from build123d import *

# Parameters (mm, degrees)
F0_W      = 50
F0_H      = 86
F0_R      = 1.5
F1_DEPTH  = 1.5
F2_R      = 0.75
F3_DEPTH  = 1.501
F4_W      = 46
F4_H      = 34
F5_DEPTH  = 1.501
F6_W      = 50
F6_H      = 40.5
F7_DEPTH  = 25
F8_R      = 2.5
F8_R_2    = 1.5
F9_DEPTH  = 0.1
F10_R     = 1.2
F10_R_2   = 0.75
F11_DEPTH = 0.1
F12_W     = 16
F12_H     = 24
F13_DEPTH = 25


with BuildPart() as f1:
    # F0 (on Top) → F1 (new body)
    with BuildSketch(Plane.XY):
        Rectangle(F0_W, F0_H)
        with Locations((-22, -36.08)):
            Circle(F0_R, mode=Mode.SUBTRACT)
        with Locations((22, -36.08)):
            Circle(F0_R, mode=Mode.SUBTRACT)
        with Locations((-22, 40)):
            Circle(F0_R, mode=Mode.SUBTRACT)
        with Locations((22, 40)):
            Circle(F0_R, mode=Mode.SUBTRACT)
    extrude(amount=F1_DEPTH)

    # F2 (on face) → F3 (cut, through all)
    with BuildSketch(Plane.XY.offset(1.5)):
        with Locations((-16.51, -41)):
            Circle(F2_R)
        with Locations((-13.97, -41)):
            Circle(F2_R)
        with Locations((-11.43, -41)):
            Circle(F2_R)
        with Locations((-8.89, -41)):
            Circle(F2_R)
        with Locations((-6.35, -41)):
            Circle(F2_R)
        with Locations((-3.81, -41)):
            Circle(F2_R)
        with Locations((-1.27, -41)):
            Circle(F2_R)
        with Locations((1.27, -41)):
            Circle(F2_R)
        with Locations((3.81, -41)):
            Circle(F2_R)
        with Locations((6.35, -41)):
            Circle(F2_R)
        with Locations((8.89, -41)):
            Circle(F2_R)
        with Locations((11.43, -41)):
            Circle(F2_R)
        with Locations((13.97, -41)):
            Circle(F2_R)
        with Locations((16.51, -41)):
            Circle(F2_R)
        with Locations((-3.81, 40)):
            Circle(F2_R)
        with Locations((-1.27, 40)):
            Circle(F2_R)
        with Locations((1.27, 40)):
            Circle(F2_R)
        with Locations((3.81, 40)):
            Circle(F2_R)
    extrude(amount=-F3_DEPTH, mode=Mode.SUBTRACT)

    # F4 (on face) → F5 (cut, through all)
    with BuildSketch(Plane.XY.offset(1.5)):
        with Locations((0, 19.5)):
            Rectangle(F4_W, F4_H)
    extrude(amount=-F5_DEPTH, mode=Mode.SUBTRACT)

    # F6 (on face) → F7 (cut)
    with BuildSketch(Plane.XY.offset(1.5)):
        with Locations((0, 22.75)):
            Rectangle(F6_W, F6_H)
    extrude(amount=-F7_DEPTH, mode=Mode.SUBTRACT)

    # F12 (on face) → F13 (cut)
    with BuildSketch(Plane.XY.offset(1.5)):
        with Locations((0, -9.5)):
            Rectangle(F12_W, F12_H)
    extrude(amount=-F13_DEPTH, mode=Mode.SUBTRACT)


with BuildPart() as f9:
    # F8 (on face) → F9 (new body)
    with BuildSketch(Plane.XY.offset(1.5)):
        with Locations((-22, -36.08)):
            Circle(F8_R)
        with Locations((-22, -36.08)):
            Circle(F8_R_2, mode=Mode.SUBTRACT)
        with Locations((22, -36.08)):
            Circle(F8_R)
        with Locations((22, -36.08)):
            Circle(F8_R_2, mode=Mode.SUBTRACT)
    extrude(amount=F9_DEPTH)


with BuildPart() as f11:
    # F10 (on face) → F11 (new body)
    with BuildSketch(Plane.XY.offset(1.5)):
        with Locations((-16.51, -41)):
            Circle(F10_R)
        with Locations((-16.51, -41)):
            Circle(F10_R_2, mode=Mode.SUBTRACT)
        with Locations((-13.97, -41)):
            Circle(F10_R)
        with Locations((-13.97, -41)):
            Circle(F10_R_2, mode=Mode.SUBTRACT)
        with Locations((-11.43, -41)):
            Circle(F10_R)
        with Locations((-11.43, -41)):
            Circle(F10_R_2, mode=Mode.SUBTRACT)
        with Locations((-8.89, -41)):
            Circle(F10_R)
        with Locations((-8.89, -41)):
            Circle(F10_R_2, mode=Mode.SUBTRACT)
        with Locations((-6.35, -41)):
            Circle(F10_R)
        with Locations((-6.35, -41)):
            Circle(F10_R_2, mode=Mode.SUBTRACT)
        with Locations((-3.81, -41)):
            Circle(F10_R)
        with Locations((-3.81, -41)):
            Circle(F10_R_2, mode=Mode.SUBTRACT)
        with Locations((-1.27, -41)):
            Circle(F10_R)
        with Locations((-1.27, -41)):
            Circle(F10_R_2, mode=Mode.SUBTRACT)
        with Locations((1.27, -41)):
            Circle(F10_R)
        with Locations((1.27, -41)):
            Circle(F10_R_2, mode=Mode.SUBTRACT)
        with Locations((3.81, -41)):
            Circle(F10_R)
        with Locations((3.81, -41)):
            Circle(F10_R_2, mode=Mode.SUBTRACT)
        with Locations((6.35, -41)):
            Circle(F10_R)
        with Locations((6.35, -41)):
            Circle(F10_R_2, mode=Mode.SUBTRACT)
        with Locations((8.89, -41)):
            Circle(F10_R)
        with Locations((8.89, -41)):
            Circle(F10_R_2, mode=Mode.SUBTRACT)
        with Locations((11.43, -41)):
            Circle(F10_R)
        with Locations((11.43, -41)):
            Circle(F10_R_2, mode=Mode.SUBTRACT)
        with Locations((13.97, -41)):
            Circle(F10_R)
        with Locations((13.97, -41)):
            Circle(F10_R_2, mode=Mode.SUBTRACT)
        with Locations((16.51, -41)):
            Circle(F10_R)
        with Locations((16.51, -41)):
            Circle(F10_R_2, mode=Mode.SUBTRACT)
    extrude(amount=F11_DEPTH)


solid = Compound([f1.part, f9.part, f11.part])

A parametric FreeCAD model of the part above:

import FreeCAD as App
import Part
import Sketcher
Q = App.Units.Quantity


def add_polygon(sketch, points):
    """Adds a closed chain of lines whose ends are joined by coincident constraints."""
    first, n = sketch.GeometryCount, len(points)
    for a, b in zip(points, points[1:] + points[:1]):
        sketch.addGeometry(Part.LineSegment(App.Vector(*a, 0), App.Vector(*b, 0)), False)
    for i in range(n):
        sketch.addConstraint(Sketcher.Constraint("Coincident", first + i, 2, first + (i + 1) % n, 1))

doc = App.newDocument("Part")
params = doc.addObject("Spreadsheet::Sheet", "Params")
for row, (alias, value) in enumerate([
    ("sketch1_diameter", "3 mm"),
    ("sketch1_width", "50 mm"),
    ("sketch1_height", "86 mm"),
    ("pad1_length", "1.5 mm"),
    ("sketch2_diameter", "1.5 mm"),
    ("sketch3_width", "46 mm"),
    ("sketch3_height", "34 mm"),
    ("sketch4_width", "50 mm"),
    ("sketch4_height", "40.5 mm"),
    ("pocket3_length", "25 mm"),
    ("sketch5_width", "16 mm"),
    ("sketch5_height", "24 mm"),
    ("pocket4_length", "25 mm"),
    ("sketch6_diameter", "5 mm"),
    ("sketch6_diameter2", "3 mm"),
    ("pad2_length", "0.1 mm"),
    ("sketch7_diameter", "2.4 mm"),
    ("sketch7_diameter2", "1.5 mm"),
    ("pad3_length", "0.1 mm"),
], start=1):
    params.set(f"A{row}", alias)
    params.set(f"B{row}", "=" + value)
    params.setAlias(f"B{row}", alias)

body = doc.addObject("PartDesign::Body", "Body")

sketch1 = body.newObject("Sketcher::SketchObject", "Sketch")
sketch1.AttachmentSupport = (doc.getObject("XY_Plane"), [""])
sketch1.MapMode = "FlatFace"
add_polygon(sketch1, [(-25, 43), (-25, -43), (25, -43), (25, 43)])
sketch1.addGeometry(Part.Circle(App.Vector(-22, -36.08, 0), App.Vector(0, 0, 1), 1.5), False)
sketch1.addGeometry(Part.Circle(App.Vector(22, -36.08, 0), App.Vector(0, 0, 1), 1.5), False)
sketch1.addGeometry(Part.Circle(App.Vector(-22, 40, 0), App.Vector(0, 0, 1), 1.5), False)
sketch1.addGeometry(Part.Circle(App.Vector(22, 40, 0), App.Vector(0, 0, 1), 1.5), False)
sketch1.addConstraint([
    Sketcher.Constraint("Vertical", 0),
    Sketcher.Constraint("Horizontal", 1),
    Sketcher.Constraint("Vertical", 2),
    Sketcher.Constraint("Horizontal", 3),
    Sketcher.Constraint("Equal", 4, 5),
    Sketcher.Constraint("Equal", 5, 6),
    Sketcher.Constraint("Equal", 6, 7),
    Sketcher.Constraint("Symmetric", 0, 2, 2, 2, -1, 1),
    Sketcher.Constraint("Symmetric", 4, 3, 5, 3, -2),
    Sketcher.Constraint("Symmetric", 6, 3, 7, 3, -2),
    Sketcher.Constraint("Vertical", 4, 3, 6, 3),
    Sketcher.Constraint("Diameter", 4, Q("3 mm")),
    Sketcher.Constraint("DistanceX", 1, 1, 1, 2, Q("50 mm")),
    Sketcher.Constraint("DistanceY", 0, 2, 0, 1, Q("86 mm")),
    Sketcher.Constraint("DistanceX", 4, 3, -1, 1, Q("22 mm")),
    Sketcher.Constraint("DistanceY", -1, 1, 6, 3, Q("40 mm")),
    Sketcher.Constraint("DistanceY", 4, 3, -1, 1, Q("36.08 mm")),
])
sketch1.setExpression("Constraints[15]", "Params.sketch1_diameter")
sketch1.setExpression("Constraints[16]", "Params.sketch1_width")
sketch1.setExpression("Constraints[17]", "Params.sketch1_height")
pad1 = body.newObject("PartDesign::Pad", "Pad")
pad1.Profile = sketch1
pad1.setExpression("Length", "Params.pad1_length")

sketch2 = body.newObject("Sketcher::SketchObject", "Sketch001")
sketch2.AttachmentSupport = (doc.getObject("XY_Plane"), [""])
sketch2.MapMode = "FlatFace"
sketch2.AttachmentOffset = App.Placement(App.Vector(0, 0, 1.5), App.Rotation())
sketch2.addGeometry([
    Part.Circle(App.Vector(-16.51, -41, 0), App.Vector(0, 0, 1), 0.75),
    Part.Circle(App.Vector(-13.97, -41, 0), App.Vector(0, 0, 1), 0.75),
    Part.Circle(App.Vector(-11.43, -41, 0), App.Vector(0, 0, 1), 0.75),
    Part.Circle(App.Vector(-8.89, -41, 0), App.Vector(0, 0, 1), 0.75),
    Part.Circle(App.Vector(-6.35, -41, 0), App.Vector(0, 0, 1), 0.75),
    Part.Circle(App.Vector(-3.81, -41, 0), App.Vector(0, 0, 1), 0.75),
    Part.Circle(App.Vector(-1.27, -41, 0), App.Vector(0, 0, 1), 0.75),
    Part.Circle(App.Vector(1.27, -41, 0), App.Vector(0, 0, 1), 0.75),
    Part.Circle(App.Vector(3.81, -41, 0), App.Vector(0, 0, 1), 0.75),
    Part.Circle(App.Vector(6.35, -41, 0), App.Vector(0, 0, 1), 0.75),
    Part.Circle(App.Vector(8.89, -41, 0), App.Vector(0, 0, 1), 0.75),
    Part.Circle(App.Vector(11.43, -41, 0), App.Vector(0, 0, 1), 0.75),
    Part.Circle(App.Vector(13.97, -41, 0), App.Vector(0, 0, 1), 0.75),
    Part.Circle(App.Vector(16.51, -41, 0), App.Vector(0, 0, 1), 0.75),
    Part.Circle(App.Vector(-3.81, 40, 0), App.Vector(0, 0, 1), 0.75),
    Part.Circle(App.Vector(-1.27, 40, 0), App.Vector(0, 0, 1), 0.75),
    Part.Circle(App.Vector(1.27, 40, 0), App.Vector(0, 0, 1), 0.75),
    Part.Circle(App.Vector(3.81, 40, 0), App.Vector(0, 0, 1), 0.75),
], False)
sketch2.addConstraint([
    Sketcher.Constraint("Equal", 0, 1),
    Sketcher.Constraint("Equal", 1, 2),
    Sketcher.Constraint("Equal", 2, 3),
    Sketcher.Constraint("Equal", 3, 4),
    Sketcher.Constraint("Equal", 4, 5),
    Sketcher.Constraint("Equal", 5, 6),
    Sketcher.Constraint("Equal", 6, 7),
    Sketcher.Constraint("Equal", 7, 8),
    Sketcher.Constraint("Equal", 8, 9),
    Sketcher.Constraint("Equal", 9, 10),
    Sketcher.Constraint("Equal", 10, 11),
    Sketcher.Constraint("Equal", 11, 12),
    Sketcher.Constraint("Equal", 12, 13),
    Sketcher.Constraint("Equal", 13, 14),
    Sketcher.Constraint("Equal", 14, 15),
    Sketcher.Constraint("Equal", 15, 16),
    Sketcher.Constraint("Equal", 16, 17),
    Sketcher.Constraint("Symmetric", 6, 3, 7, 3, -2),
    Sketcher.Constraint("Symmetric", 5, 3, 8, 3, -2),
    Sketcher.Constraint("Symmetric", 4, 3, 9, 3, -2),
    Sketcher.Constraint("Symmetric", 3, 3, 10, 3, -2),
    Sketcher.Constraint("Symmetric", 2, 3, 11, 3, -2),
    Sketcher.Constraint("Symmetric", 1, 3, 12, 3, -2),
    Sketcher.Constraint("Symmetric", 0, 3, 13, 3, -2),
    Sketcher.Constraint("Symmetric", 15, 3, 16, 3, -2),
    Sketcher.Constraint("Symmetric", 14, 3, 17, 3, -2),
    Sketcher.Constraint("Horizontal", 0, 3, 1, 3),
    Sketcher.Constraint("Horizontal", 1, 3, 2, 3),
    Sketcher.Constraint("Horizontal", 2, 3, 3, 3),
    Sketcher.Constraint("Horizontal", 3, 3, 4, 3),
    Sketcher.Constraint("Horizontal", 4, 3, 5, 3),
    Sketcher.Constraint("Horizontal", 5, 3, 6, 3),
    Sketcher.Constraint("Horizontal", 14, 3, 15, 3),
    Sketcher.Constraint("Vertical", 5, 3, 14, 3),
    Sketcher.Constraint("Vertical", 6, 3, 15, 3),
    Sketcher.Constraint("Diameter", 0, Q("1.5 mm")),
    Sketcher.Constraint("DistanceY", 0, 3, -1, 1, Q("41 mm")),
    Sketcher.Constraint("DistanceY", -1, 1, 14, 3, Q("40 mm")),
    Sketcher.Constraint("DistanceX", 0, 3, 5, 3, Q("12.7 mm")),
    Sketcher.Constraint("DistanceX", 1, 3, 6, 3, Q("12.7 mm")),
    Sketcher.Constraint("DistanceX", 2, 3, 7, 3, Q("12.7 mm")),
    Sketcher.Constraint("DistanceX", 3, 3, 8, 3, Q("12.7 mm")),
    Sketcher.Constraint("DistanceX", 4, 3, 9, 3, Q("12.7 mm")),
    Sketcher.Constraint("DistanceX", 0, 3, -1, 1, Q("16.51 mm")),
    Sketcher.Constraint("DistanceX", 1, 3, -1, 1, Q("13.97 mm")),
])
sketch2.setExpression("Constraints[35]", "Params.sketch2_diameter")
pocket1 = body.newObject("PartDesign::Pocket", "Pocket")
pocket1.Profile = sketch2
pocket1.Type = "ThroughAll"

sketch3 = body.newObject("Sketcher::SketchObject", "Sketch002")
sketch3.AttachmentSupport = (doc.getObject("XY_Plane"), [""])
sketch3.MapMode = "FlatFace"
sketch3.AttachmentOffset = App.Placement(App.Vector(0, 0, 1.5), App.Rotation())
add_polygon(sketch3, [(-23, 36.5), (-23, 2.5), (23, 2.5), (23, 36.5)])
sketch3.addConstraint([
    Sketcher.Constraint("Vertical", 0),
    Sketcher.Constraint("Horizontal", 1),
    Sketcher.Constraint("Vertical", 2),
    Sketcher.Constraint("Horizontal", 3),
    Sketcher.Constraint("DistanceX", 1, 1, 1, 2, Q("46 mm")),
    Sketcher.Constraint("DistanceY", 0, 2, 0, 1, Q("34 mm")),
    Sketcher.Constraint("DistanceX", 0, 2, -1, 1, Q("23 mm")),
    Sketcher.Constraint("DistanceY", -1, 1, 0, 2, Q("2.5 mm")),
])
sketch3.setExpression("Constraints[8]", "Params.sketch3_width")
sketch3.setExpression("Constraints[9]", "Params.sketch3_height")
pocket2 = body.newObject("PartDesign::Pocket", "Pocket001")
pocket2.Profile = sketch3
pocket2.Type = "ThroughAll"

sketch4 = body.newObject("Sketcher::SketchObject", "Sketch003")
sketch4.AttachmentSupport = (doc.getObject("XY_Plane"), [""])
sketch4.MapMode = "FlatFace"
sketch4.AttachmentOffset = App.Placement(App.Vector(0, 0, 1.5), App.Rotation())
add_polygon(sketch4, [(-25, 43), (-25, 2.5), (25, 2.5), (25, 43)])
sketch4.addConstraint([
    Sketcher.Constraint("Vertical", 0),
    Sketcher.Constraint("Horizontal", 1),
    Sketcher.Constraint("Vertical", 2),
    Sketcher.Constraint("Horizontal", 3),
    Sketcher.Constraint("DistanceX", 1, 1, 1, 2, Q("50 mm")),
    Sketcher.Constraint("DistanceY", 0, 2, 0, 1, Q("40.5 mm")),
    Sketcher.Constraint("DistanceX", 0, 2, -1, 1, Q("25 mm")),
    Sketcher.Constraint("DistanceY", -1, 1, 2, 2, Q("43 mm")),
])
sketch4.setExpression("Constraints[8]", "Params.sketch4_width")
sketch4.setExpression("Constraints[9]", "Params.sketch4_height")
pocket3 = body.newObject("PartDesign::Pocket", "Pocket002")
pocket3.Profile = sketch4
pocket3.setExpression("Length", "Params.pocket3_length")

sketch5 = body.newObject("Sketcher::SketchObject", "Sketch004")
sketch5.AttachmentSupport = (doc.getObject("XY_Plane"), [""])
sketch5.MapMode = "FlatFace"
sketch5.AttachmentOffset = App.Placement(App.Vector(0, 0, 1.5), App.Rotation())
add_polygon(sketch5, [(-8, 2.5), (-8, -21.5), (8, -21.5), (8, 2.5)])
sketch5.addConstraint([
    Sketcher.Constraint("Vertical", 0),
    Sketcher.Constraint("Horizontal", 1),
    Sketcher.Constraint("Vertical", 2),
    Sketcher.Constraint("Horizontal", 3),
    Sketcher.Constraint("DistanceX", 1, 1, 1, 2, Q("16 mm")),
    Sketcher.Constraint("DistanceY", 0, 2, 0, 1, Q("24 mm")),
    Sketcher.Constraint("DistanceX", 0, 2, -1, 1, Q("8 mm")),
    Sketcher.Constraint("DistanceY", 0, 2, -1, 1, Q("21.5 mm")),
])
sketch5.setExpression("Constraints[8]", "Params.sketch5_width")
sketch5.setExpression("Constraints[9]", "Params.sketch5_height")
pocket4 = body.newObject("PartDesign::Pocket", "Pocket003")
pocket4.Profile = sketch5
pocket4.setExpression("Length", "Params.pocket4_length")
body2 = doc.addObject("PartDesign::Body", "Body001")
body2.AllowCompound = True

sketch6 = body2.newObject("Sketcher::SketchObject", "Sketch005")
sketch6.AttachmentSupport = (doc.getObject("XY_Plane001"), [""])
sketch6.MapMode = "FlatFace"
sketch6.AttachmentOffset = App.Placement(App.Vector(0, 0, 1.5), App.Rotation())
sketch6.addGeometry([
    Part.Circle(App.Vector(-22, -36.08, 0), App.Vector(0, 0, 1), 2.5),
    Part.Circle(App.Vector(-22, -36.08, 0), App.Vector(0, 0, 1), 1.5),
    Part.Circle(App.Vector(22, -36.08, 0), App.Vector(0, 0, 1), 2.5),
    Part.Circle(App.Vector(22, -36.08, 0), App.Vector(0, 0, 1), 1.5),
], False)
sketch6.addConstraint([
    Sketcher.Constraint("Coincident", 1, 3, 0, 3),
    Sketcher.Constraint("Coincident", 3, 3, 2, 3),
    Sketcher.Constraint("Equal", 0, 2),
    Sketcher.Constraint("Equal", 1, 3),
    Sketcher.Constraint("Symmetric", 0, 3, 2, 3, -2),
    Sketcher.Constraint("Diameter", 0, Q("5 mm")),
    Sketcher.Constraint("Diameter", 1, Q("3 mm")),
    Sketcher.Constraint("DistanceX", 0, 3, -1, 1, Q("22 mm")),
    Sketcher.Constraint("DistanceY", 0, 3, -1, 1, Q("36.08 mm")),
])
sketch6.setExpression("Constraints[5]", "Params.sketch6_diameter")
sketch6.setExpression("Constraints[6]", "Params.sketch6_diameter2")
pad2 = body2.newObject("PartDesign::Pad", "Pad001")
pad2.Profile = sketch6
pad2.setExpression("Length", "Params.pad2_length")
body3 = doc.addObject("PartDesign::Body", "Body002")
body3.AllowCompound = True

sketch7 = body3.newObject("Sketcher::SketchObject", "Sketch006")
sketch7.AttachmentSupport = (doc.getObject("XY_Plane002"), [""])
sketch7.MapMode = "FlatFace"
sketch7.AttachmentOffset = App.Placement(App.Vector(0, 0, 1.5), App.Rotation())
sketch7.addGeometry([
    Part.Circle(App.Vector(-16.51, -41, 0), App.Vector(0, 0, 1), 1.2),
    Part.Circle(App.Vector(-16.51, -41, 0), App.Vector(0, 0, 1), 0.75),
    Part.Circle(App.Vector(-13.97, -41, 0), App.Vector(0, 0, 1), 1.2),
    Part.Circle(App.Vector(-13.97, -41, 0), App.Vector(0, 0, 1), 0.75),
    Part.Circle(App.Vector(-11.43, -41, 0), App.Vector(0, 0, 1), 1.2),
    Part.Circle(App.Vector(-11.43, -41, 0), App.Vector(0, 0, 1), 0.75),
    Part.Circle(App.Vector(-8.89, -41, 0), App.Vector(0, 0, 1), 1.2),
    Part.Circle(App.Vector(-8.89, -41, 0), App.Vector(0, 0, 1), 0.75),
    Part.Circle(App.Vector(-6.35, -41, 0), App.Vector(0, 0, 1), 1.2),
    Part.Circle(App.Vector(-6.35, -41, 0), App.Vector(0, 0, 1), 0.75),
    Part.Circle(App.Vector(-3.81, -41, 0), App.Vector(0, 0, 1), 1.2),
    Part.Circle(App.Vector(-3.81, -41, 0), App.Vector(0, 0, 1), 0.75),
    Part.Circle(App.Vector(-1.27, -41, 0), App.Vector(0, 0, 1), 1.2),
    Part.Circle(App.Vector(-1.27, -41, 0), App.Vector(0, 0, 1), 0.75),
    Part.Circle(App.Vector(1.27, -41, 0), App.Vector(0, 0, 1), 1.2),
    Part.Circle(App.Vector(1.27, -41, 0), App.Vector(0, 0, 1), 0.75),
    Part.Circle(App.Vector(3.81, -41, 0), App.Vector(0, 0, 1), 1.2),
    Part.Circle(App.Vector(3.81, -41, 0), App.Vector(0, 0, 1), 0.75),
    Part.Circle(App.Vector(6.35, -41, 0), App.Vector(0, 0, 1), 1.2),
    Part.Circle(App.Vector(6.35, -41, 0), App.Vector(0, 0, 1), 0.75),
    Part.Circle(App.Vector(8.89, -41, 0), App.Vector(0, 0, 1), 1.2),
    Part.Circle(App.Vector(8.89, -41, 0), App.Vector(0, 0, 1), 0.75),
    Part.Circle(App.Vector(11.43, -41, 0), App.Vector(0, 0, 1), 1.2),
    Part.Circle(App.Vector(11.43, -41, 0), App.Vector(0, 0, 1), 0.75),
    Part.Circle(App.Vector(13.97, -41, 0), App.Vector(0, 0, 1), 1.2),
    Part.Circle(App.Vector(13.97, -41, 0), App.Vector(0, 0, 1), 0.75),
    Part.Circle(App.Vector(16.51, -41, 0), App.Vector(0, 0, 1), 1.2),
    Part.Circle(App.Vector(16.51, -41, 0), App.Vector(0, 0, 1), 0.75),
], False)
sketch7.addConstraint([
    Sketcher.Constraint("Coincident", 1, 3, 0, 3),
    Sketcher.Constraint("Coincident", 3, 3, 2, 3),
    Sketcher.Constraint("Coincident", 5, 3, 4, 3),
    Sketcher.Constraint("Coincident", 7, 3, 6, 3),
    Sketcher.Constraint("Coincident", 9, 3, 8, 3),
    Sketcher.Constraint("Coincident", 11, 3, 10, 3),
    Sketcher.Constraint("Coincident", 13, 3, 12, 3),
    Sketcher.Constraint("Coincident", 15, 3, 14, 3),
    Sketcher.Constraint("Coincident", 17, 3, 16, 3),
    Sketcher.Constraint("Coincident", 19, 3, 18, 3),
    Sketcher.Constraint("Coincident", 21, 3, 20, 3),
    Sketcher.Constraint("Coincident", 23, 3, 22, 3),
    Sketcher.Constraint("Coincident", 25, 3, 24, 3),
    Sketcher.Constraint("Coincident", 27, 3, 26, 3),
    Sketcher.Constraint("Equal", 0, 2),
    Sketcher.Constraint("Equal", 1, 3),
    Sketcher.Constraint("Equal", 2, 4),
    Sketcher.Constraint("Equal", 3, 5),
    Sketcher.Constraint("Equal", 4, 6),
    Sketcher.Constraint("Equal", 5, 7),
    Sketcher.Constraint("Equal", 6, 8),
    Sketcher.Constraint("Equal", 7, 9),
    Sketcher.Constraint("Equal", 8, 10),
    Sketcher.Constraint("Equal", 9, 11),
    Sketcher.Constraint("Equal", 10, 12),
    Sketcher.Constraint("Equal", 11, 13),
    Sketcher.Constraint("Equal", 12, 14),
    Sketcher.Constraint("Equal", 13, 15),
    Sketcher.Constraint("Equal", 14, 16),
    Sketcher.Constraint("Equal", 15, 17),
    Sketcher.Constraint("Equal", 16, 18),
    Sketcher.Constraint("Equal", 17, 19),
    Sketcher.Constraint("Equal", 18, 20),
    Sketcher.Constraint("Equal", 19, 21),
    Sketcher.Constraint("Equal", 20, 22),
    Sketcher.Constraint("Equal", 21, 23),
    Sketcher.Constraint("Equal", 22, 24),
    Sketcher.Constraint("Equal", 23, 25),
    Sketcher.Constraint("Equal", 24, 26),
    Sketcher.Constraint("Equal", 25, 27),
    Sketcher.Constraint("Symmetric", 12, 3, 14, 3, -2),
    Sketcher.Constraint("Symmetric", 10, 3, 16, 3, -2),
    Sketcher.Constraint("Symmetric", 8, 3, 18, 3, -2),
    Sketcher.Constraint("Symmetric", 6, 3, 20, 3, -2),
    Sketcher.Constraint("Symmetric", 4, 3, 22, 3, -2),
    Sketcher.Constraint("Symmetric", 2, 3, 24, 3, -2),
    Sketcher.Constraint("Symmetric", 0, 3, 26, 3, -2),
    Sketcher.Constraint("Horizontal", 1, 3, 2, 3),
    Sketcher.Constraint("Horizontal", 3, 3, 4, 3),
    Sketcher.Constraint("Horizontal", 5, 3, 6, 3),
    Sketcher.Constraint("Horizontal", 7, 3, 8, 3),
    Sketcher.Constraint("Horizontal", 9, 3, 10, 3),
    Sketcher.Constraint("Horizontal", 11, 3, 12, 3),
    Sketcher.Constraint("Diameter", 0, Q("2.4 mm")),
    Sketcher.Constraint("Diameter", 1, Q("1.5 mm")),
    Sketcher.Constraint("DistanceY", 0, 3, -1, 1, Q("41 mm")),
    Sketcher.Constraint("DistanceX", 0, 3, -1, 1, Q("16.51 mm")),
    Sketcher.Constraint("DistanceX", 2, 3, -1, 1, Q("13.97 mm")),
    Sketcher.Constraint("DistanceX", 4, 3, -1, 1, Q("11.43 mm")),
    Sketcher.Constraint("DistanceX", 6, 3, -1, 1, Q("8.89 mm")),
    Sketcher.Constraint("DistanceX", 8, 3, -1, 1, Q("6.35 mm")),
    Sketcher.Constraint("DistanceX", 10, 3, -1, 1, Q("3.81 mm")),
    Sketcher.Constraint("DistanceX", 12, 3, -1, 1, Q("1.27 mm")),
])
sketch7.setExpression("Constraints[53]", "Params.sketch7_diameter")
sketch7.setExpression("Constraints[54]", "Params.sketch7_diameter2")
pad3 = body3.newObject("PartDesign::Pad", "Pad002")
pad3.Profile = sketch7
pad3.setExpression("Length", "Params.pad3_length")

doc.recompute()
